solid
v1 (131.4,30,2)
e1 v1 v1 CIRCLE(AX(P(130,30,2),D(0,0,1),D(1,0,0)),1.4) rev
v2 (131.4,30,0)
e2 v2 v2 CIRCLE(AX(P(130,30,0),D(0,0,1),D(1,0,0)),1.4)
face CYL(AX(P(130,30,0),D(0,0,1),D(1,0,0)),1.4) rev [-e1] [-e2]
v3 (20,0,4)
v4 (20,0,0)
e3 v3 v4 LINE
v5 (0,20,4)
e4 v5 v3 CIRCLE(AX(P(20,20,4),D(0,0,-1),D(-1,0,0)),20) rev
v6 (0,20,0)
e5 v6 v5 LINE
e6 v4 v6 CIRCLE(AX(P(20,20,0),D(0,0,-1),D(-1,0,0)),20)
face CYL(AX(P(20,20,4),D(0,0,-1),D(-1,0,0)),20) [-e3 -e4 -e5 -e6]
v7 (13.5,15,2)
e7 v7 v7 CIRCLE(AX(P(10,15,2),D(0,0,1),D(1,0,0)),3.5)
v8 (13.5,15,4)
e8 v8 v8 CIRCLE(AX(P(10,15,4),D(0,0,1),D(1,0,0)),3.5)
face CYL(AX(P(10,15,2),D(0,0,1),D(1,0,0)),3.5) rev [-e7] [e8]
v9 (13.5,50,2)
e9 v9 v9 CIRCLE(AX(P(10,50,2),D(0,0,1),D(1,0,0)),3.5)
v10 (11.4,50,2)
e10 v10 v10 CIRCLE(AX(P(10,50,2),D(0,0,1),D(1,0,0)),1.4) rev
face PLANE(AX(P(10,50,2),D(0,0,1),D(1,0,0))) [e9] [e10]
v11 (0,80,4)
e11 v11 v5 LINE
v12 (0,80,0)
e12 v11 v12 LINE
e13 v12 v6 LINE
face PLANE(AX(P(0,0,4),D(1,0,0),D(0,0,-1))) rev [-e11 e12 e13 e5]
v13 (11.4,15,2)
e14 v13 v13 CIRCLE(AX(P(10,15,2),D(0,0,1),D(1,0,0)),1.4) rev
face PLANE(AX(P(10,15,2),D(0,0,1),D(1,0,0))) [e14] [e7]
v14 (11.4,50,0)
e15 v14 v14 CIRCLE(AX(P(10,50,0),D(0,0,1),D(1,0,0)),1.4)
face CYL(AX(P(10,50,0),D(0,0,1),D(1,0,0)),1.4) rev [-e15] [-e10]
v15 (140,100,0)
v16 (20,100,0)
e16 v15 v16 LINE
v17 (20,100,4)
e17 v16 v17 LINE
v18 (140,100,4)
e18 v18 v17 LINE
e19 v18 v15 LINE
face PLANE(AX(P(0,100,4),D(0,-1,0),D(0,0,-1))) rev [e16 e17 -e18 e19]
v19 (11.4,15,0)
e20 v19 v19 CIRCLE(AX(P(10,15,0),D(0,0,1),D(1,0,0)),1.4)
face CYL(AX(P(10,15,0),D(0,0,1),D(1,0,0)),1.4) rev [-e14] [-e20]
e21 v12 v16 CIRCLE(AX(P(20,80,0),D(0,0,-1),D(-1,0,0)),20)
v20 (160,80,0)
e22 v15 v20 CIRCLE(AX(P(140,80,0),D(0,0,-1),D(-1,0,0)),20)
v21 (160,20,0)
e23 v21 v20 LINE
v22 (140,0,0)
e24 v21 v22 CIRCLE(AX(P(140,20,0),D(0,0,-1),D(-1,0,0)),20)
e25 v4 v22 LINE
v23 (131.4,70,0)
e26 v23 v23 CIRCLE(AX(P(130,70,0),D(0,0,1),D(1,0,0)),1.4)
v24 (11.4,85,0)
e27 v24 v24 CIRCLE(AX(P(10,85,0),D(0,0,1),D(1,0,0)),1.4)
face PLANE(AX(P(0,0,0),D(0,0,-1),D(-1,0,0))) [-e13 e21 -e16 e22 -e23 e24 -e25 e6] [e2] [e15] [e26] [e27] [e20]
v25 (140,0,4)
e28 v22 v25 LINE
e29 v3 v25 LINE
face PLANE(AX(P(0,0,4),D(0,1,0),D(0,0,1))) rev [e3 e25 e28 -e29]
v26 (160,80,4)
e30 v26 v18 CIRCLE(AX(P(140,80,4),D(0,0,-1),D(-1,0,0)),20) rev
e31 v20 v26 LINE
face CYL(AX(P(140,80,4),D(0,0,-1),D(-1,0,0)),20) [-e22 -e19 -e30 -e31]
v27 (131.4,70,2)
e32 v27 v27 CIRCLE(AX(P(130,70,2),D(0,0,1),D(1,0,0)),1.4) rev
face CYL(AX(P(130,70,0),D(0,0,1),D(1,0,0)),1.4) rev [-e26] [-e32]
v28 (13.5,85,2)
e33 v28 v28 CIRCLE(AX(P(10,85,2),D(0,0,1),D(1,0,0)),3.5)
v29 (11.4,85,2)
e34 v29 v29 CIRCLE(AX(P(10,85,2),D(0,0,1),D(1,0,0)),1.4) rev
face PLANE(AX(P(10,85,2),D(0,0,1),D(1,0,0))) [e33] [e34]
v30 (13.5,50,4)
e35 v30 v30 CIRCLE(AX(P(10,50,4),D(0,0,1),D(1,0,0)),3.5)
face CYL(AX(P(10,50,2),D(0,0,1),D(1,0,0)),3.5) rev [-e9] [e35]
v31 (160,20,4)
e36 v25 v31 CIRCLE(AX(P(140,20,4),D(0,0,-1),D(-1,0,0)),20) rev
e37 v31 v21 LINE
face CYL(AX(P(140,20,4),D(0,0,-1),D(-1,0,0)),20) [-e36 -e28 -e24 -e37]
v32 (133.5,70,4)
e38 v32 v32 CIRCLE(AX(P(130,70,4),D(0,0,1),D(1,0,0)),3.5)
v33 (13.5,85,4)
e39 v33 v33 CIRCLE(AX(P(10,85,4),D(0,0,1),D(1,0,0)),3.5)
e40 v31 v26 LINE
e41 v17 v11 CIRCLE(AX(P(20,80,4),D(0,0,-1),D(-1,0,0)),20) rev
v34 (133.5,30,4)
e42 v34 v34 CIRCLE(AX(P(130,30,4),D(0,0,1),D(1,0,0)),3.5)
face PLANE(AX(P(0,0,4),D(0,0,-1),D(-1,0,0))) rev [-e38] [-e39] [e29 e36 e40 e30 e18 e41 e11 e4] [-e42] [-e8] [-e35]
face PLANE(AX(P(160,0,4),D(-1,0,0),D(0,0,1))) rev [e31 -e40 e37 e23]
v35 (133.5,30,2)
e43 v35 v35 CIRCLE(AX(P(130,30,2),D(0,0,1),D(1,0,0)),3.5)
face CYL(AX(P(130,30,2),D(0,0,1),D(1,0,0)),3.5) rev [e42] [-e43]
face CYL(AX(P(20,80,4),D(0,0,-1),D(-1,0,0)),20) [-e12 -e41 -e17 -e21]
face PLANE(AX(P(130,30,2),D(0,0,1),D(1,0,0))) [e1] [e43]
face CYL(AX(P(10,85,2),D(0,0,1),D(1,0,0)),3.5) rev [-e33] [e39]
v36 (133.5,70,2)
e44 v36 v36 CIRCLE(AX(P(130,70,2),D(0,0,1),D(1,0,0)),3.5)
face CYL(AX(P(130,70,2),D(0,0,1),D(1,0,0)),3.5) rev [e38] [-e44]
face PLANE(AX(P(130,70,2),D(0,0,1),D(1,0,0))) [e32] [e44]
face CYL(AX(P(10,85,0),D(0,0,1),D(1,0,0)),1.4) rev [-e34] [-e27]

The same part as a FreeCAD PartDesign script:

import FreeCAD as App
import Part
import Sketcher

V = App.Vector
Q = App.Units.Quantity


def edges_at(feature, points):
    """Names of the edges that pass closest to the given points."""
    edges = feature.Shape.Edges
    near = lambda p: min(range(len(edges)), key=lambda i: edges[i].distToShape(Part.Vertex(*p))[0])
    return sorted({f"Edge{near(p) + 1}" for p in points})

doc = App.newDocument("Part")
body = doc.addObject("PartDesign::Body", "Body")

# Sketch on XY plane
sketch1 = body.newObject("Sketcher::SketchObject", "Sketch")
sketch1.AttachmentSupport = (doc.getObject("XY_Plane"), [""])
sketch1.MapMode = "FlatFace"
sketch1.addGeometry(Part.LineSegment(V(0, 100, 0), V(0, 0, 0)), False)
sketch1.addGeometry(Part.LineSegment(V(0, 0, 0), V(160, 0, 0)), False)
sketch1.addGeometry(Part.LineSegment(V(160, 0, 0), V(160, 100, 0)), False)
sketch1.addGeometry(Part.LineSegment(V(160, 100, 0), V(0, 100, 0)), False)
sketch1.addConstraint(Sketcher.Constraint("Coincident", 0, 2, 1, 1))
sketch1.addConstraint(Sketcher.Constraint("Coincident", 1, 2, 2, 1))
sketch1.addConstraint(Sketcher.Constraint("Coincident", 2, 2, 3, 1))
sketch1.addConstraint(Sketcher.Constraint("Coincident", 3, 2, 0, 1))
sketch1.addConstraint(Sketcher.Constraint("Vertical", 0))
sketch1.addConstraint(Sketcher.Constraint("Horizontal", 1))
sketch1.addConstraint(Sketcher.Constraint("Vertical", 2))
sketch1.addConstraint(Sketcher.Constraint("Horizontal", 3))
sketch1.addConstraint(Sketcher.Constraint("Coincident", 0, 2, -1, 1))
sketch1.addConstraint(Sketcher.Constraint("DistanceX", 1, 1, 1, 2, Q("160 mm")))
sketch1.addConstraint(Sketcher.Constraint("DistanceY", 0, 2, 0, 1, Q("100 mm")))
pad1 = body.newObject("PartDesign::Pad", "Pad")
pad1.Profile = sketch1
pad1.Length = 4
doc.recompute()

fillet = body.newObject("PartDesign::Fillet", "Fillet")
fillet.Base = (pad1, edges_at(pad1, [
    (0, 100, 2),
    (160, 100, 2),
    (160, 0, 2),
    (0, 0, 2),
]))
fillet.Radius = 20

# Sketch on XY plane
sketch2 = body.newObject("Sketcher::SketchObject", "Sketch001")
sketch2.AttachmentSupport = (doc.getObject("XY_Plane"), [""])
sketch2.MapMode = "FlatFace"
sketch2.AttachmentOffset = App.Placement(V(0, 0, 4), App.Rotation())
sketch2.addGeometry(Part.Circle(V(130, 30, 0), V(0, 0, 1), 1.4), False)
sketch2.addGeometry(Part.Circle(V(130, 70, 0), V(0, 0, 1), 1.4), False)
sketch2.addGeometry(Part.Circle(V(10, 15, 0), V(0, 0, 1), 1.4), False)
sketch2.addGeometry(Part.Circle(V(10, 50, 0), V(0, 0, 1), 1.4), False)
sketch2.addGeometry(Part.Circle(V(10, 85, 0), V(0, 0, 1), 1.4), False)
sketch2.addConstraint(Sketcher.Constraint("Equal", 0, 1))
sketch2.addConstraint(Sketcher.Constraint("Equal", 1, 2))
sketch2.addConstraint(Sketcher.Constraint("Equal", 2, 3))
sketch2.addConstraint(Sketcher.Constraint("Equal", 3, 4))
sketch2.addConstraint(Sketcher.Constraint("Vertical", 0, 3, 1, 3))
sketch2.addConstraint(Sketcher.Constraint("Vertical", 2, 3, 3, 3))
sketch2.addConstraint(Sketcher.Constraint("Vertical", 3, 3, 4, 3))
sketch2.addConstraint(Sketcher.Constraint("Diameter", 0, Q("2.8 mm")))
sketch2.addConstraint(Sketcher.Constraint("DistanceX", -1, 1, 0, 3, Q("130 mm")))
sketch2.addConstraint(Sketcher.Constraint("DistanceY", -1, 1, 0, 3, Q("30 mm")))
sketch2.addConstraint(Sketcher.Constraint("DistanceY", -1, 1, 1, 3, Q("70 mm")))
sketch2.addConstraint(Sketcher.Constraint("DistanceX", -1, 1, 2, 3, Q("10 mm")))
sketch2.addConstraint(Sketcher.Constraint("DistanceY", -1, 1, 2, 3, Q("15 mm")))
sketch2.addConstraint(Sketcher.Constraint("DistanceY", -1, 1, 3, 3, Q("50 mm")))
sketch2.addConstraint(Sketcher.Constraint("DistanceY", -1, 1, 4, 3, Q("85 mm")))
pocket1 = body.newObject("PartDesign::Pocket", "Pocket")
pocket1.Profile = sketch2
pocket1.Length = 4

# Sketch on XY plane
sketch3 = body.newObject("Sketcher::SketchObject", "Sketch002")
sketch3.AttachmentSupport = (doc.getObject("XY_Plane"), [""])
sketch3.MapMode = "FlatFace"
sketch3.AttachmentOffset = App.Placement(V(0, 0, 4), App.Rotation())
sketch3.addGeometry(Part.Circle(V(130, 30, 0), V(0, 0, 1), 3.5), False)
sketch3.addGeometry(Part.Circle(V(130, 70, 0), V(0, 0, 1), 3.5), False)
sketch3.addGeometry(Part.Circle(V(10, 85, 0), V(0, 0, 1), 3.5), False)
sketch3.addGeometry(Part.Circle(V(10, 50, 0), V(0, 0, 1), 3.5), False)
sketch3.addGeometry(Part.Circle(V(10, 15, 0), V(0, 0, 1), 3.5), False)
sketch3.addConstraint(Sketcher.Constraint("Equal", 0, 1))
sketch3.addConstraint(Sketcher.Constraint("Equal", 1, 2))
sketch3.addConstraint(Sketcher.Constraint("Equal", 2, 3))
sketch3.addConstraint(Sketcher.Constraint("Equal", 3, 4))
sketch3.addConstraint(Sketcher.Constraint("Vertical", 0, 3, 1, 3))
sketch3.addConstraint(Sketcher.Constraint("Vertical", 2, 3, 3, 3))
sketch3.addConstraint(Sketcher.Constraint("Vertical", 3, 3, 4, 3))
sketch3.addConstraint(Sketcher.Constraint("Diameter", 0, Q("7 mm")))
sketch3.addConstraint(Sketcher.Constraint("DistanceX", -1, 1, 0, 3, Q("130 mm")))
sketch3.addConstraint(Sketcher.Constraint("DistanceY", -1, 1, 0, 3, Q("30 mm")))
sketch3.addConstraint(Sketcher.Constraint("DistanceY", -1, 1, 1, 3, Q("70 mm")))
sketch3.addConstraint(Sketcher.Constraint("DistanceX", -1, 1, 2, 3, Q("10 mm")))
sketch3.addConstraint(Sketcher.Constraint("DistanceY", -1, 1, 2, 3, Q("85 mm")))
sketch3.addConstraint(Sketcher.Constraint("DistanceY", -1, 1, 3, 3, Q("50 mm")))
sketch3.addConstraint(Sketcher.Constraint("DistanceY", -1, 1, 4, 3, Q("15 mm")))
pocket2 = body.newObject("PartDesign::Pocket", "Pocket001")
pocket2.Profile = sketch3
pocket2.Length = 2

doc.recompute()
